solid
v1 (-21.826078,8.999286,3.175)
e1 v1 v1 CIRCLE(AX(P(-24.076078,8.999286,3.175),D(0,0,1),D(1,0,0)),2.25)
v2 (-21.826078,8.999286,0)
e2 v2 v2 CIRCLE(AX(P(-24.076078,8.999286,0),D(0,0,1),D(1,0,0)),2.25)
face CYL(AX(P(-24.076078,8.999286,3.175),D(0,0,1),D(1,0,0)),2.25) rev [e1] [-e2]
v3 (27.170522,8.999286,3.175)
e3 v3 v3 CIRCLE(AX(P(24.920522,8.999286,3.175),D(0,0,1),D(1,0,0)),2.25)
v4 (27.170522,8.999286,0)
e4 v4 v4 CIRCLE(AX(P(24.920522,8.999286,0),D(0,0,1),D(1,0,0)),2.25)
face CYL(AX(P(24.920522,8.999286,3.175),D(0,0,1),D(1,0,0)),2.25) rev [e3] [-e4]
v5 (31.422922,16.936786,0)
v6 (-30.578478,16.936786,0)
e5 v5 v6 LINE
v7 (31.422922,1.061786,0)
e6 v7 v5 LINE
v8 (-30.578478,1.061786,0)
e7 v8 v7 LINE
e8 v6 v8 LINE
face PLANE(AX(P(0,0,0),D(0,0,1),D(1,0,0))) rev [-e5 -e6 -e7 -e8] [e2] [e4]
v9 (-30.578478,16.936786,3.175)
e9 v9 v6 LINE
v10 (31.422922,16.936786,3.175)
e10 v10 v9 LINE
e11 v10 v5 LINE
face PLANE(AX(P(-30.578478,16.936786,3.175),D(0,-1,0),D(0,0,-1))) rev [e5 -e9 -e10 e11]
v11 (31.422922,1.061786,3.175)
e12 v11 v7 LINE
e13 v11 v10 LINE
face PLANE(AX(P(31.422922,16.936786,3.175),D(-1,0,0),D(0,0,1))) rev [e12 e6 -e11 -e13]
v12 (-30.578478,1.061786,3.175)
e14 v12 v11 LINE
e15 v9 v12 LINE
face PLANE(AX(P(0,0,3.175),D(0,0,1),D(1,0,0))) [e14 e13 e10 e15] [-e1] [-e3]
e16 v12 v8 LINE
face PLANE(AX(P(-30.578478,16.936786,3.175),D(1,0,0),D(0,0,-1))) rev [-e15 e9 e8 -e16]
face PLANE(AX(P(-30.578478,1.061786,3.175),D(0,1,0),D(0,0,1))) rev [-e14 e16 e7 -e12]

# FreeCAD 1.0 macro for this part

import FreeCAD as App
import Part
import Sketcher
Q = App.Units.Quantity

doc = App.newDocument("Part")
body = doc.addObject("PartDesign::Body", "Body")

# Sketch on XY plane
sketch1 = doc.addObject("Sketcher::SketchObject", "Sketch")
body.addObject(sketch1)
sketch1.AttachmentSupport = (doc.XY_Plane, [""])
sketch1.MapMode = "FlatFace"
sketch1.addGeometry([
    Part.LineSegment(App.Vector(-31, 17, 0), App.Vector(-31, 1, 0)),
    Part.LineSegment(App.Vector(-31, 1, 0), App.Vector(31, 1, 0)),
    Part.LineSegment(App.Vector(31, 1, 0), App.Vector(31, 17, 0)),
    Part.LineSegment(App.Vector(31, 17, 0), App.Vector(-31, 17, 0)),
], False)
sketch1.addConstraint([
    Sketcher.Constraint("Coincident", 0, 2, 1, 1),
    Sketcher.Constraint("Coincident", 1, 2, 2, 1),
    Sketcher.Constraint("Coincident", 2, 2, 3, 1),
    Sketcher.Constraint("Coincident", 3, 2, 0, 1),
    Sketcher.Constraint("Vertical", 0),
    Sketcher.Constraint("Horizontal", 1),
    Sketcher.Constraint("Vertical", 2),
    Sketcher.Constraint("Horizontal", 3),
    Sketcher.Constraint("DistanceX", 1, 1, 1, 2, Q("2.441 in")),
    Sketcher.Constraint("DistanceY", 0, 2, 0, 1, Q("0.625 in")),
    Sketcher.Constraint("DistanceX", 0, 2, -1, 1, Q("30.578478 mm")),
    Sketcher.Constraint("DistanceY", -1, 1, 0, 2, Q("1.061786 mm")),
])
pad1 = doc.addObject("PartDesign::Pad", "Pad")
body.addObject(pad1)
pad1.Profile = sketch1
pad1.Length = Q("0.125 in")

# Sketch on XY plane
sketch2 = doc.addObject("Sketcher::SketchObject", "Sketch001")
body.addObject(sketch2)
sketch2.AttachmentSupport = (doc.XY_Plane, [""])
sketch2.MapMode = "FlatFace"
sketch2.AttachmentOffset = App.Placement(App.Vector(0, 0, 0.125 * 25.4), App.Rotation())
sketch2.addGeometry([
    Part.Circle(App.Vector(-24.1, 9, 0), App.Vector(0, 0, 1), 2.2),
    Part.Circle(App.Vector(24.9, 9, 0), App.Vector(0, 0, 1), 2.2),
], False)
sketch2.addConstraint([
    Sketcher.Constraint("Equal", 0, 1),
    Sketcher.Constraint("Horizontal", 0, 3, 1, 3),
    Sketcher.Constraint("Diameter", 0, Q("4.5 mm")),
    Sketcher.Constraint("DistanceX", 0, 3, 1, 3, Q("1.929 in")),
    Sketcher.Constraint("DistanceX", 0, 3, -1, 1, Q("24.076078 mm")),
    Sketcher.Constraint("DistanceY", -1, 1, 0, 3, Q("8.999286 mm")),
])
doc.recompute()
hole = doc.addObject("PartDesign::Hole", "Hole")
body.addObject(hole)
hole.Profile = sketch2
hole.ThreadType = "None"
hole.Diameter = 4.5
hole.DepthType = "ThroughAll"

doc.recompute()
